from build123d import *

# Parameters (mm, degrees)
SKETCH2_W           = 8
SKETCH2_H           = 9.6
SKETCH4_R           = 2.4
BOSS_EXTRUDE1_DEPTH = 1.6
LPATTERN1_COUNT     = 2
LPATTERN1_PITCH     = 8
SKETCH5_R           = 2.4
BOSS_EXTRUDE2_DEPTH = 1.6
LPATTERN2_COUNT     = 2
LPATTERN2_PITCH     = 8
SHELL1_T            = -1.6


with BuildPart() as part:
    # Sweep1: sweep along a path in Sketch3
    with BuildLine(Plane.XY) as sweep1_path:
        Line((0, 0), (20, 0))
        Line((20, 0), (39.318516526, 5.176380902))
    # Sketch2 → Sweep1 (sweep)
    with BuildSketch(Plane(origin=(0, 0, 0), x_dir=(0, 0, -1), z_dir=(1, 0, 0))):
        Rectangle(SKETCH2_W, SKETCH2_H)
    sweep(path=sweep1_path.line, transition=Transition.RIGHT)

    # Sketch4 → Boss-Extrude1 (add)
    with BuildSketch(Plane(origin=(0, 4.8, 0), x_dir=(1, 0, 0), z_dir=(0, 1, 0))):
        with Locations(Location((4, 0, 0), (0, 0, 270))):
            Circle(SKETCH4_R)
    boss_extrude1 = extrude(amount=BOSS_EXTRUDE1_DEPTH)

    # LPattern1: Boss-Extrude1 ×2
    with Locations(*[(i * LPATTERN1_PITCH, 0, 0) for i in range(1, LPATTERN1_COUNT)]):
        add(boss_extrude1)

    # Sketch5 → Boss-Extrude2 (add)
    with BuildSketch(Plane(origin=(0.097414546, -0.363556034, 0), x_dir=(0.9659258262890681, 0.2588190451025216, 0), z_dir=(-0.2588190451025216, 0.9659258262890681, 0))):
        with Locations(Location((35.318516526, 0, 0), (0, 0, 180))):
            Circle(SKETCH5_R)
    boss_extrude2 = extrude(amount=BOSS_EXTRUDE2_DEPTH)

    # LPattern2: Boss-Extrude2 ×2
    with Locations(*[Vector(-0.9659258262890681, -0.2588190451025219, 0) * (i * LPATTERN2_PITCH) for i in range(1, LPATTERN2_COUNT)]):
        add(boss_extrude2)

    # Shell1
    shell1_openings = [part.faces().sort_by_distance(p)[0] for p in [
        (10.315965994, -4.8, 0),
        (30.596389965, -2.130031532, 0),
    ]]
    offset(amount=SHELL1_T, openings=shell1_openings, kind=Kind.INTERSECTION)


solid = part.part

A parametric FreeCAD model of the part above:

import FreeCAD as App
import Part
import Sketcher
Q = App.Units.Quantity


def faces_at(feature, points):
    """Names of the faces that lie closest to the given points."""
    faces = feature.Shape.Faces
    near = lambda p: min(range(len(faces)), key=lambda i: faces[i].distToShape(Part.Vertex(*p))[0])
    return sorted({f"Face{near(p) + 1}" for p in points})

doc = App.newDocument("Part")
body = doc.addObject("PartDesign::Body", "Body")

# Sketch on YZ plane
sketch1 = body.newObject("Sketcher::SketchObject", "Sketch")
sketch1.AttachmentSupport = (doc.getObject("YZ_Plane"), [""])
sketch1.MapMode = "FlatFace"
sketch1.addGeometry([
    Part.LineSegment(App.Vector(4.8, 4, 0), App.Vector(-4.8, 4, 0)),
    Part.LineSegment(App.Vector(-4.8, 4, 0), App.Vector(-4.8, -4, 0)),
    Part.LineSegment(App.Vector(-4.8, -4, 0), App.Vector(4.8, -4, 0)),
    Part.LineSegment(App.Vector(4.8, -4, 0), App.Vector(4.8, 4, 0)),
], False)
sketch1.addConstraint([
    Sketcher.Constraint("Coincident", 0, 2, 1, 1),
    Sketcher.Constraint("Coincident", 1, 2, 2, 1),
    Sketcher.Constraint("Coincident", 2, 2, 3, 1),
    Sketcher.Constraint("Coincident", 3, 2, 0, 1),
    Sketcher.Constraint("Horizontal", 0),
    Sketcher.Constraint("Vertical", 1),
    Sketcher.Constraint("Horizontal", 2),
    Sketcher.Constraint("Vertical", 3),
    Sketcher.Constraint("Symmetric", 0, 2, 2, 2, -1, 1),
    Sketcher.Constraint("DistanceY", 1, 2, 1, 1, 8.0),
    Sketcher.Constraint("DistanceX", 0, 2, 0, 1, 9.6),
])

# Sketch on XY plane
sketch2 = body.newObject("Sketcher::SketchObject", "Sketch001")
sketch2.AttachmentSupport = (doc.getObject("XY_Plane"), [""])
sketch2.MapMode = "FlatFace"
sketch2.addGeometry([
    Part.LineSegment(App.Vector(0, 0, 0), App.Vector(20, 0, 0)),
    Part.LineSegment(App.Vector(20, 0, 0), App.Vector(39.318517, 5.176381, 0)),
], False)
sketch2.addConstraint([
    Sketcher.Constraint("Coincident", 0, 2, 1, 1),
    Sketcher.Constraint("Horizontal", 0),
    Sketcher.Constraint("Coincident", 0, 1, -1, 1),
    Sketcher.Constraint("DistanceX", 0, 1, 0, 2, 20.0),
    Sketcher.Constraint("Angle", 1, Q("15 deg")),
    Sketcher.Constraint("Distance", 1, 20.0),
])
doc.recompute()

additivepipe = body.newObject("PartDesign::AdditivePipe", "AdditivePipe")
additivepipe.Profile = sketch1
additivepipe.Spine = (sketch2, ["Edge1", "Edge2"])
additivepipe.Transition = "Right corner"

# Sketch on XZ plane
sketch3 = body.newObject("Sketcher::SketchObject", "Sketch002")
sketch3.AttachmentSupport = (doc.getObject("XZ_Plane"), [""])
sketch3.MapMode = "FlatFace"
sketch3.AttachmentOffset = App.Placement(App.Vector(0, 0, -4.8), App.Rotation())
sketch3.addGeometry(Part.Circle(App.Vector(4, 0, 0), App.Vector(0, 0, 1), 2.4), False)
sketch3.addConstraint([
    Sketcher.Constraint("PointOnObject", 0, 3, -1),
    Sketcher.Constraint("Diameter", 0, 4.8),
    Sketcher.Constraint("DistanceX", -1, 1, 0, 3, 4.0),
])
pad1 = body.newObject("PartDesign::Pad", "Pad")
pad1.Profile = sketch3
pad1.Length = 1.6
pad1.Reversed = True
doc.recompute()

linearpattern = body.newObject("PartDesign::LinearPattern", "LinearPattern")
linearpattern.Originals = [pad1]
linearpattern.Direction = (doc.getObject("X_Axis"), [""])
linearpattern.Mode = "offset"
linearpattern.Offset = 8
linearpattern.Occurrences = 2
body.Tip = linearpattern

# Sketch on an angled plane
sketch4 = body.newObject("Sketcher::SketchObject", "Sketch003")
sketch4.Placement = App.Placement(App.Vector(0.097415, -0.363556, 0), App.Rotation(App.Vector(0.965925826, 0.258819045, 0), App.Vector(0, 0, -0.999999999), App.Vector(-0.258819045, 0.965925826, 0), "ZXY"))
sketch4.addGeometry(Part.Circle(App.Vector(35.318517, 0, 0), App.Vector(0, 0, 1), 2.4), False)
sketch4.addConstraint([
    Sketcher.Constraint("PointOnObject", 0, 3, -1),
    Sketcher.Constraint("Diameter", 0, 4.8),
    Sketcher.Constraint("DistanceX", -1, 1, 0, 3, 35.318517),
])
pad2 = body.newObject("PartDesign::Pad", "Pad001")
pad2.Profile = sketch4
pad2.Length = 1.6
doc.recompute()

datumline = body.newObject("PartDesign::Line", "DatumLine")
datumline.Placement = App.Placement(App.Vector(0, 0, 0), App.Rotation(App.Vector(0, 0, 1), App.Vector(-0.965925826, -0.258819045, 0)))
linearpattern2 = body.newObject("PartDesign::LinearPattern", "LinearPattern001")
linearpattern2.Originals = [pad2]
linearpattern2.Direction = (datumline, [""])
linearpattern2.Mode = "offset"
linearpattern2.Offset = 8
linearpattern2.Occurrences = 2
body.Tip = linearpattern2
doc.recompute()

thickness = body.newObject("PartDesign::Thickness", "Thickness")
thickness.Base = (linearpattern2, faces_at(linearpattern2, [(10.316, -4.8, 0), (30.596, -2.13, 0)]))
thickness.Value = 1.6
thickness.Reversed = True
thickness.Join = "Intersection"

doc.recompute()
